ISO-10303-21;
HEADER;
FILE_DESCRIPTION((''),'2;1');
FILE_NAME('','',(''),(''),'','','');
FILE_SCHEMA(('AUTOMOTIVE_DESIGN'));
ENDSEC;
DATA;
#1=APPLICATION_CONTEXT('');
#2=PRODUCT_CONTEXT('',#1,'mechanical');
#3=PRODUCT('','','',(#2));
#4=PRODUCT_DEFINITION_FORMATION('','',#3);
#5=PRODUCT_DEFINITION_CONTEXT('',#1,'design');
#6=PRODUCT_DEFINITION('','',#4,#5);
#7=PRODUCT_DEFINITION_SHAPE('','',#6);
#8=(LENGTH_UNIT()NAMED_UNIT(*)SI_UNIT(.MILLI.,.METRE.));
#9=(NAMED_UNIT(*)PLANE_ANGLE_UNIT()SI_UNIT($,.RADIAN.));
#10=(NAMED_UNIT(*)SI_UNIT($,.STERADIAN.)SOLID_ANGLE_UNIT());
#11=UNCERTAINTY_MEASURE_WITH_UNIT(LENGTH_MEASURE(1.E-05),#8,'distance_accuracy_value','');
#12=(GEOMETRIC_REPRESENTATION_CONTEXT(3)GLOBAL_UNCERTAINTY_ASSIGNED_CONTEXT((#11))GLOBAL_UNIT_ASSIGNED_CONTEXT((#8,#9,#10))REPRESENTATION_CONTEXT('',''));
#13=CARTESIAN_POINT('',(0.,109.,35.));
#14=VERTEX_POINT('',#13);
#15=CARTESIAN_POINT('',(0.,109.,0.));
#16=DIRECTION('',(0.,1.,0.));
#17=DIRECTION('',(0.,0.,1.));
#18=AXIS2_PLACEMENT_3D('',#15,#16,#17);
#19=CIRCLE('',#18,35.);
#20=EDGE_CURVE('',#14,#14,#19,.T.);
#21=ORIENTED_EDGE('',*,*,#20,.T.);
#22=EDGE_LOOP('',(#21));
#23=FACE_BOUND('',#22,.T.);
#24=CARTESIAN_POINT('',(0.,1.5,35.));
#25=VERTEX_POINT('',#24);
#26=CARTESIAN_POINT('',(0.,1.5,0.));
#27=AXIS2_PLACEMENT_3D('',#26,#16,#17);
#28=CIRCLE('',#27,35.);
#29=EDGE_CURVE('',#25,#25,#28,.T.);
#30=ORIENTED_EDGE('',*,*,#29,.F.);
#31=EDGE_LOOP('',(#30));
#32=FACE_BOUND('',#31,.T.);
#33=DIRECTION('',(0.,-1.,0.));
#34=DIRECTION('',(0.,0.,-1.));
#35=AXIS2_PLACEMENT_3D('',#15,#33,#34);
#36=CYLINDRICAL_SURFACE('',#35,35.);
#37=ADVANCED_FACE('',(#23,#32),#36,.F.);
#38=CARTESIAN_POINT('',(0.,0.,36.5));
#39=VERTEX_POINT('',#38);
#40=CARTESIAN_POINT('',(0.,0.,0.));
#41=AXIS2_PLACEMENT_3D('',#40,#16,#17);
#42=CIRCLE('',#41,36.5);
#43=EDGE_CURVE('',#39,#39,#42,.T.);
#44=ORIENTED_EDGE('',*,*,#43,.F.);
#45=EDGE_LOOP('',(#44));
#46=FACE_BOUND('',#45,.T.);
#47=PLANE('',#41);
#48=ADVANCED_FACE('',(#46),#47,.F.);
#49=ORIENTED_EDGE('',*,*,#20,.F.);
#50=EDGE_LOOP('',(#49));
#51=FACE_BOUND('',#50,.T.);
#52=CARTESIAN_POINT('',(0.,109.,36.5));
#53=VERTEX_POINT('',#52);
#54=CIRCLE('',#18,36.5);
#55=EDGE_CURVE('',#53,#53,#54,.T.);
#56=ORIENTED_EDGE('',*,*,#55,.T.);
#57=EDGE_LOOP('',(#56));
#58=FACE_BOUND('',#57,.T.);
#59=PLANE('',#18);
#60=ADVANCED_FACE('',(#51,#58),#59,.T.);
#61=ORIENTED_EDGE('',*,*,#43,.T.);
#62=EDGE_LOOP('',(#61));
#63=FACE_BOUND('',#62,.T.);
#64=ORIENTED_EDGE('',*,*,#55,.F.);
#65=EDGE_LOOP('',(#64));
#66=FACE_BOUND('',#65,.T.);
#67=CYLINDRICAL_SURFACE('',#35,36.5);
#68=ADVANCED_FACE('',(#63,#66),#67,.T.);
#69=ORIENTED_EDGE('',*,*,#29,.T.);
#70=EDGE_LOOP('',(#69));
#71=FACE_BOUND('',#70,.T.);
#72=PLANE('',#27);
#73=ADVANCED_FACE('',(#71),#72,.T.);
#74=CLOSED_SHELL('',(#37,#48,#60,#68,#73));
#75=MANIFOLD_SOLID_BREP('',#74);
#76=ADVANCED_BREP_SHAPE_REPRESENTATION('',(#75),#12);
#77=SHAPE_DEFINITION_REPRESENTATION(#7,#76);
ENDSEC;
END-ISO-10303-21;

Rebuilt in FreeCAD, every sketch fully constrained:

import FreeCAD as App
import Part
import Sketcher

V = App.Vector
Q = App.Units.Quantity


def faces_at(feature, points):
    """Names of the faces that lie closest to the given points."""
    faces = feature.Shape.Faces
    near = lambda p: min(range(len(faces)), key=lambda i: faces[i].distToShape(Part.Vertex(*p))[0])
    return sorted({f"Face{near(p) + 1}" for p in points})

doc = App.newDocument("Part")
params = doc.addObject("Spreadsheet::Sheet", "Params")
for row, (alias, value) in enumerate([
    ("sketch1_diameter", "73 mm"),
    ("pad1_length", "109 mm"),
    ("thickness_wall", "1.5 mm"),
], start=1):
    params.set(f"A{row}", alias)
    params.set(f"B{row}", "=" + value)
    params.setAlias(f"B{row}", alias)

body = doc.addObject("PartDesign::Body", "Body")

# Sketch on XZ plane
sketch1 = body.newObject("Sketcher::SketchObject", "Sketch")
sketch1.AttachmentSupport = (doc.getObject("XZ_Plane"), [""])
sketch1.MapMode = "FlatFace"
sketch1.addGeometry(Part.Circle(V(0, 0, 0), V(0, 0, 1), 36), False)
sketch1.addConstraint(Sketcher.Constraint("Coincident", 0, 3, -1, 1))
sketch1.addConstraint(Sketcher.Constraint("Diameter", 0, Q("73 mm")))
sketch1.setExpression("Constraints[1]", "Params.sketch1_diameter")
pad1 = body.newObject("PartDesign::Pad", "Pad")
pad1.Profile = sketch1
pad1.setExpression("Length", "Params.pad1_length")
pad1.Reversed = True
doc.recompute()

thickness = body.newObject("PartDesign::Thickness", "Thickness")
thickness.Base = (pad1, faces_at(pad1, [(0, 109, 0)]))
thickness.setExpression("Value", "Params.thickness_wall")
thickness.Reversed = True
thickness.Join = "Intersection"

doc.recompute()
